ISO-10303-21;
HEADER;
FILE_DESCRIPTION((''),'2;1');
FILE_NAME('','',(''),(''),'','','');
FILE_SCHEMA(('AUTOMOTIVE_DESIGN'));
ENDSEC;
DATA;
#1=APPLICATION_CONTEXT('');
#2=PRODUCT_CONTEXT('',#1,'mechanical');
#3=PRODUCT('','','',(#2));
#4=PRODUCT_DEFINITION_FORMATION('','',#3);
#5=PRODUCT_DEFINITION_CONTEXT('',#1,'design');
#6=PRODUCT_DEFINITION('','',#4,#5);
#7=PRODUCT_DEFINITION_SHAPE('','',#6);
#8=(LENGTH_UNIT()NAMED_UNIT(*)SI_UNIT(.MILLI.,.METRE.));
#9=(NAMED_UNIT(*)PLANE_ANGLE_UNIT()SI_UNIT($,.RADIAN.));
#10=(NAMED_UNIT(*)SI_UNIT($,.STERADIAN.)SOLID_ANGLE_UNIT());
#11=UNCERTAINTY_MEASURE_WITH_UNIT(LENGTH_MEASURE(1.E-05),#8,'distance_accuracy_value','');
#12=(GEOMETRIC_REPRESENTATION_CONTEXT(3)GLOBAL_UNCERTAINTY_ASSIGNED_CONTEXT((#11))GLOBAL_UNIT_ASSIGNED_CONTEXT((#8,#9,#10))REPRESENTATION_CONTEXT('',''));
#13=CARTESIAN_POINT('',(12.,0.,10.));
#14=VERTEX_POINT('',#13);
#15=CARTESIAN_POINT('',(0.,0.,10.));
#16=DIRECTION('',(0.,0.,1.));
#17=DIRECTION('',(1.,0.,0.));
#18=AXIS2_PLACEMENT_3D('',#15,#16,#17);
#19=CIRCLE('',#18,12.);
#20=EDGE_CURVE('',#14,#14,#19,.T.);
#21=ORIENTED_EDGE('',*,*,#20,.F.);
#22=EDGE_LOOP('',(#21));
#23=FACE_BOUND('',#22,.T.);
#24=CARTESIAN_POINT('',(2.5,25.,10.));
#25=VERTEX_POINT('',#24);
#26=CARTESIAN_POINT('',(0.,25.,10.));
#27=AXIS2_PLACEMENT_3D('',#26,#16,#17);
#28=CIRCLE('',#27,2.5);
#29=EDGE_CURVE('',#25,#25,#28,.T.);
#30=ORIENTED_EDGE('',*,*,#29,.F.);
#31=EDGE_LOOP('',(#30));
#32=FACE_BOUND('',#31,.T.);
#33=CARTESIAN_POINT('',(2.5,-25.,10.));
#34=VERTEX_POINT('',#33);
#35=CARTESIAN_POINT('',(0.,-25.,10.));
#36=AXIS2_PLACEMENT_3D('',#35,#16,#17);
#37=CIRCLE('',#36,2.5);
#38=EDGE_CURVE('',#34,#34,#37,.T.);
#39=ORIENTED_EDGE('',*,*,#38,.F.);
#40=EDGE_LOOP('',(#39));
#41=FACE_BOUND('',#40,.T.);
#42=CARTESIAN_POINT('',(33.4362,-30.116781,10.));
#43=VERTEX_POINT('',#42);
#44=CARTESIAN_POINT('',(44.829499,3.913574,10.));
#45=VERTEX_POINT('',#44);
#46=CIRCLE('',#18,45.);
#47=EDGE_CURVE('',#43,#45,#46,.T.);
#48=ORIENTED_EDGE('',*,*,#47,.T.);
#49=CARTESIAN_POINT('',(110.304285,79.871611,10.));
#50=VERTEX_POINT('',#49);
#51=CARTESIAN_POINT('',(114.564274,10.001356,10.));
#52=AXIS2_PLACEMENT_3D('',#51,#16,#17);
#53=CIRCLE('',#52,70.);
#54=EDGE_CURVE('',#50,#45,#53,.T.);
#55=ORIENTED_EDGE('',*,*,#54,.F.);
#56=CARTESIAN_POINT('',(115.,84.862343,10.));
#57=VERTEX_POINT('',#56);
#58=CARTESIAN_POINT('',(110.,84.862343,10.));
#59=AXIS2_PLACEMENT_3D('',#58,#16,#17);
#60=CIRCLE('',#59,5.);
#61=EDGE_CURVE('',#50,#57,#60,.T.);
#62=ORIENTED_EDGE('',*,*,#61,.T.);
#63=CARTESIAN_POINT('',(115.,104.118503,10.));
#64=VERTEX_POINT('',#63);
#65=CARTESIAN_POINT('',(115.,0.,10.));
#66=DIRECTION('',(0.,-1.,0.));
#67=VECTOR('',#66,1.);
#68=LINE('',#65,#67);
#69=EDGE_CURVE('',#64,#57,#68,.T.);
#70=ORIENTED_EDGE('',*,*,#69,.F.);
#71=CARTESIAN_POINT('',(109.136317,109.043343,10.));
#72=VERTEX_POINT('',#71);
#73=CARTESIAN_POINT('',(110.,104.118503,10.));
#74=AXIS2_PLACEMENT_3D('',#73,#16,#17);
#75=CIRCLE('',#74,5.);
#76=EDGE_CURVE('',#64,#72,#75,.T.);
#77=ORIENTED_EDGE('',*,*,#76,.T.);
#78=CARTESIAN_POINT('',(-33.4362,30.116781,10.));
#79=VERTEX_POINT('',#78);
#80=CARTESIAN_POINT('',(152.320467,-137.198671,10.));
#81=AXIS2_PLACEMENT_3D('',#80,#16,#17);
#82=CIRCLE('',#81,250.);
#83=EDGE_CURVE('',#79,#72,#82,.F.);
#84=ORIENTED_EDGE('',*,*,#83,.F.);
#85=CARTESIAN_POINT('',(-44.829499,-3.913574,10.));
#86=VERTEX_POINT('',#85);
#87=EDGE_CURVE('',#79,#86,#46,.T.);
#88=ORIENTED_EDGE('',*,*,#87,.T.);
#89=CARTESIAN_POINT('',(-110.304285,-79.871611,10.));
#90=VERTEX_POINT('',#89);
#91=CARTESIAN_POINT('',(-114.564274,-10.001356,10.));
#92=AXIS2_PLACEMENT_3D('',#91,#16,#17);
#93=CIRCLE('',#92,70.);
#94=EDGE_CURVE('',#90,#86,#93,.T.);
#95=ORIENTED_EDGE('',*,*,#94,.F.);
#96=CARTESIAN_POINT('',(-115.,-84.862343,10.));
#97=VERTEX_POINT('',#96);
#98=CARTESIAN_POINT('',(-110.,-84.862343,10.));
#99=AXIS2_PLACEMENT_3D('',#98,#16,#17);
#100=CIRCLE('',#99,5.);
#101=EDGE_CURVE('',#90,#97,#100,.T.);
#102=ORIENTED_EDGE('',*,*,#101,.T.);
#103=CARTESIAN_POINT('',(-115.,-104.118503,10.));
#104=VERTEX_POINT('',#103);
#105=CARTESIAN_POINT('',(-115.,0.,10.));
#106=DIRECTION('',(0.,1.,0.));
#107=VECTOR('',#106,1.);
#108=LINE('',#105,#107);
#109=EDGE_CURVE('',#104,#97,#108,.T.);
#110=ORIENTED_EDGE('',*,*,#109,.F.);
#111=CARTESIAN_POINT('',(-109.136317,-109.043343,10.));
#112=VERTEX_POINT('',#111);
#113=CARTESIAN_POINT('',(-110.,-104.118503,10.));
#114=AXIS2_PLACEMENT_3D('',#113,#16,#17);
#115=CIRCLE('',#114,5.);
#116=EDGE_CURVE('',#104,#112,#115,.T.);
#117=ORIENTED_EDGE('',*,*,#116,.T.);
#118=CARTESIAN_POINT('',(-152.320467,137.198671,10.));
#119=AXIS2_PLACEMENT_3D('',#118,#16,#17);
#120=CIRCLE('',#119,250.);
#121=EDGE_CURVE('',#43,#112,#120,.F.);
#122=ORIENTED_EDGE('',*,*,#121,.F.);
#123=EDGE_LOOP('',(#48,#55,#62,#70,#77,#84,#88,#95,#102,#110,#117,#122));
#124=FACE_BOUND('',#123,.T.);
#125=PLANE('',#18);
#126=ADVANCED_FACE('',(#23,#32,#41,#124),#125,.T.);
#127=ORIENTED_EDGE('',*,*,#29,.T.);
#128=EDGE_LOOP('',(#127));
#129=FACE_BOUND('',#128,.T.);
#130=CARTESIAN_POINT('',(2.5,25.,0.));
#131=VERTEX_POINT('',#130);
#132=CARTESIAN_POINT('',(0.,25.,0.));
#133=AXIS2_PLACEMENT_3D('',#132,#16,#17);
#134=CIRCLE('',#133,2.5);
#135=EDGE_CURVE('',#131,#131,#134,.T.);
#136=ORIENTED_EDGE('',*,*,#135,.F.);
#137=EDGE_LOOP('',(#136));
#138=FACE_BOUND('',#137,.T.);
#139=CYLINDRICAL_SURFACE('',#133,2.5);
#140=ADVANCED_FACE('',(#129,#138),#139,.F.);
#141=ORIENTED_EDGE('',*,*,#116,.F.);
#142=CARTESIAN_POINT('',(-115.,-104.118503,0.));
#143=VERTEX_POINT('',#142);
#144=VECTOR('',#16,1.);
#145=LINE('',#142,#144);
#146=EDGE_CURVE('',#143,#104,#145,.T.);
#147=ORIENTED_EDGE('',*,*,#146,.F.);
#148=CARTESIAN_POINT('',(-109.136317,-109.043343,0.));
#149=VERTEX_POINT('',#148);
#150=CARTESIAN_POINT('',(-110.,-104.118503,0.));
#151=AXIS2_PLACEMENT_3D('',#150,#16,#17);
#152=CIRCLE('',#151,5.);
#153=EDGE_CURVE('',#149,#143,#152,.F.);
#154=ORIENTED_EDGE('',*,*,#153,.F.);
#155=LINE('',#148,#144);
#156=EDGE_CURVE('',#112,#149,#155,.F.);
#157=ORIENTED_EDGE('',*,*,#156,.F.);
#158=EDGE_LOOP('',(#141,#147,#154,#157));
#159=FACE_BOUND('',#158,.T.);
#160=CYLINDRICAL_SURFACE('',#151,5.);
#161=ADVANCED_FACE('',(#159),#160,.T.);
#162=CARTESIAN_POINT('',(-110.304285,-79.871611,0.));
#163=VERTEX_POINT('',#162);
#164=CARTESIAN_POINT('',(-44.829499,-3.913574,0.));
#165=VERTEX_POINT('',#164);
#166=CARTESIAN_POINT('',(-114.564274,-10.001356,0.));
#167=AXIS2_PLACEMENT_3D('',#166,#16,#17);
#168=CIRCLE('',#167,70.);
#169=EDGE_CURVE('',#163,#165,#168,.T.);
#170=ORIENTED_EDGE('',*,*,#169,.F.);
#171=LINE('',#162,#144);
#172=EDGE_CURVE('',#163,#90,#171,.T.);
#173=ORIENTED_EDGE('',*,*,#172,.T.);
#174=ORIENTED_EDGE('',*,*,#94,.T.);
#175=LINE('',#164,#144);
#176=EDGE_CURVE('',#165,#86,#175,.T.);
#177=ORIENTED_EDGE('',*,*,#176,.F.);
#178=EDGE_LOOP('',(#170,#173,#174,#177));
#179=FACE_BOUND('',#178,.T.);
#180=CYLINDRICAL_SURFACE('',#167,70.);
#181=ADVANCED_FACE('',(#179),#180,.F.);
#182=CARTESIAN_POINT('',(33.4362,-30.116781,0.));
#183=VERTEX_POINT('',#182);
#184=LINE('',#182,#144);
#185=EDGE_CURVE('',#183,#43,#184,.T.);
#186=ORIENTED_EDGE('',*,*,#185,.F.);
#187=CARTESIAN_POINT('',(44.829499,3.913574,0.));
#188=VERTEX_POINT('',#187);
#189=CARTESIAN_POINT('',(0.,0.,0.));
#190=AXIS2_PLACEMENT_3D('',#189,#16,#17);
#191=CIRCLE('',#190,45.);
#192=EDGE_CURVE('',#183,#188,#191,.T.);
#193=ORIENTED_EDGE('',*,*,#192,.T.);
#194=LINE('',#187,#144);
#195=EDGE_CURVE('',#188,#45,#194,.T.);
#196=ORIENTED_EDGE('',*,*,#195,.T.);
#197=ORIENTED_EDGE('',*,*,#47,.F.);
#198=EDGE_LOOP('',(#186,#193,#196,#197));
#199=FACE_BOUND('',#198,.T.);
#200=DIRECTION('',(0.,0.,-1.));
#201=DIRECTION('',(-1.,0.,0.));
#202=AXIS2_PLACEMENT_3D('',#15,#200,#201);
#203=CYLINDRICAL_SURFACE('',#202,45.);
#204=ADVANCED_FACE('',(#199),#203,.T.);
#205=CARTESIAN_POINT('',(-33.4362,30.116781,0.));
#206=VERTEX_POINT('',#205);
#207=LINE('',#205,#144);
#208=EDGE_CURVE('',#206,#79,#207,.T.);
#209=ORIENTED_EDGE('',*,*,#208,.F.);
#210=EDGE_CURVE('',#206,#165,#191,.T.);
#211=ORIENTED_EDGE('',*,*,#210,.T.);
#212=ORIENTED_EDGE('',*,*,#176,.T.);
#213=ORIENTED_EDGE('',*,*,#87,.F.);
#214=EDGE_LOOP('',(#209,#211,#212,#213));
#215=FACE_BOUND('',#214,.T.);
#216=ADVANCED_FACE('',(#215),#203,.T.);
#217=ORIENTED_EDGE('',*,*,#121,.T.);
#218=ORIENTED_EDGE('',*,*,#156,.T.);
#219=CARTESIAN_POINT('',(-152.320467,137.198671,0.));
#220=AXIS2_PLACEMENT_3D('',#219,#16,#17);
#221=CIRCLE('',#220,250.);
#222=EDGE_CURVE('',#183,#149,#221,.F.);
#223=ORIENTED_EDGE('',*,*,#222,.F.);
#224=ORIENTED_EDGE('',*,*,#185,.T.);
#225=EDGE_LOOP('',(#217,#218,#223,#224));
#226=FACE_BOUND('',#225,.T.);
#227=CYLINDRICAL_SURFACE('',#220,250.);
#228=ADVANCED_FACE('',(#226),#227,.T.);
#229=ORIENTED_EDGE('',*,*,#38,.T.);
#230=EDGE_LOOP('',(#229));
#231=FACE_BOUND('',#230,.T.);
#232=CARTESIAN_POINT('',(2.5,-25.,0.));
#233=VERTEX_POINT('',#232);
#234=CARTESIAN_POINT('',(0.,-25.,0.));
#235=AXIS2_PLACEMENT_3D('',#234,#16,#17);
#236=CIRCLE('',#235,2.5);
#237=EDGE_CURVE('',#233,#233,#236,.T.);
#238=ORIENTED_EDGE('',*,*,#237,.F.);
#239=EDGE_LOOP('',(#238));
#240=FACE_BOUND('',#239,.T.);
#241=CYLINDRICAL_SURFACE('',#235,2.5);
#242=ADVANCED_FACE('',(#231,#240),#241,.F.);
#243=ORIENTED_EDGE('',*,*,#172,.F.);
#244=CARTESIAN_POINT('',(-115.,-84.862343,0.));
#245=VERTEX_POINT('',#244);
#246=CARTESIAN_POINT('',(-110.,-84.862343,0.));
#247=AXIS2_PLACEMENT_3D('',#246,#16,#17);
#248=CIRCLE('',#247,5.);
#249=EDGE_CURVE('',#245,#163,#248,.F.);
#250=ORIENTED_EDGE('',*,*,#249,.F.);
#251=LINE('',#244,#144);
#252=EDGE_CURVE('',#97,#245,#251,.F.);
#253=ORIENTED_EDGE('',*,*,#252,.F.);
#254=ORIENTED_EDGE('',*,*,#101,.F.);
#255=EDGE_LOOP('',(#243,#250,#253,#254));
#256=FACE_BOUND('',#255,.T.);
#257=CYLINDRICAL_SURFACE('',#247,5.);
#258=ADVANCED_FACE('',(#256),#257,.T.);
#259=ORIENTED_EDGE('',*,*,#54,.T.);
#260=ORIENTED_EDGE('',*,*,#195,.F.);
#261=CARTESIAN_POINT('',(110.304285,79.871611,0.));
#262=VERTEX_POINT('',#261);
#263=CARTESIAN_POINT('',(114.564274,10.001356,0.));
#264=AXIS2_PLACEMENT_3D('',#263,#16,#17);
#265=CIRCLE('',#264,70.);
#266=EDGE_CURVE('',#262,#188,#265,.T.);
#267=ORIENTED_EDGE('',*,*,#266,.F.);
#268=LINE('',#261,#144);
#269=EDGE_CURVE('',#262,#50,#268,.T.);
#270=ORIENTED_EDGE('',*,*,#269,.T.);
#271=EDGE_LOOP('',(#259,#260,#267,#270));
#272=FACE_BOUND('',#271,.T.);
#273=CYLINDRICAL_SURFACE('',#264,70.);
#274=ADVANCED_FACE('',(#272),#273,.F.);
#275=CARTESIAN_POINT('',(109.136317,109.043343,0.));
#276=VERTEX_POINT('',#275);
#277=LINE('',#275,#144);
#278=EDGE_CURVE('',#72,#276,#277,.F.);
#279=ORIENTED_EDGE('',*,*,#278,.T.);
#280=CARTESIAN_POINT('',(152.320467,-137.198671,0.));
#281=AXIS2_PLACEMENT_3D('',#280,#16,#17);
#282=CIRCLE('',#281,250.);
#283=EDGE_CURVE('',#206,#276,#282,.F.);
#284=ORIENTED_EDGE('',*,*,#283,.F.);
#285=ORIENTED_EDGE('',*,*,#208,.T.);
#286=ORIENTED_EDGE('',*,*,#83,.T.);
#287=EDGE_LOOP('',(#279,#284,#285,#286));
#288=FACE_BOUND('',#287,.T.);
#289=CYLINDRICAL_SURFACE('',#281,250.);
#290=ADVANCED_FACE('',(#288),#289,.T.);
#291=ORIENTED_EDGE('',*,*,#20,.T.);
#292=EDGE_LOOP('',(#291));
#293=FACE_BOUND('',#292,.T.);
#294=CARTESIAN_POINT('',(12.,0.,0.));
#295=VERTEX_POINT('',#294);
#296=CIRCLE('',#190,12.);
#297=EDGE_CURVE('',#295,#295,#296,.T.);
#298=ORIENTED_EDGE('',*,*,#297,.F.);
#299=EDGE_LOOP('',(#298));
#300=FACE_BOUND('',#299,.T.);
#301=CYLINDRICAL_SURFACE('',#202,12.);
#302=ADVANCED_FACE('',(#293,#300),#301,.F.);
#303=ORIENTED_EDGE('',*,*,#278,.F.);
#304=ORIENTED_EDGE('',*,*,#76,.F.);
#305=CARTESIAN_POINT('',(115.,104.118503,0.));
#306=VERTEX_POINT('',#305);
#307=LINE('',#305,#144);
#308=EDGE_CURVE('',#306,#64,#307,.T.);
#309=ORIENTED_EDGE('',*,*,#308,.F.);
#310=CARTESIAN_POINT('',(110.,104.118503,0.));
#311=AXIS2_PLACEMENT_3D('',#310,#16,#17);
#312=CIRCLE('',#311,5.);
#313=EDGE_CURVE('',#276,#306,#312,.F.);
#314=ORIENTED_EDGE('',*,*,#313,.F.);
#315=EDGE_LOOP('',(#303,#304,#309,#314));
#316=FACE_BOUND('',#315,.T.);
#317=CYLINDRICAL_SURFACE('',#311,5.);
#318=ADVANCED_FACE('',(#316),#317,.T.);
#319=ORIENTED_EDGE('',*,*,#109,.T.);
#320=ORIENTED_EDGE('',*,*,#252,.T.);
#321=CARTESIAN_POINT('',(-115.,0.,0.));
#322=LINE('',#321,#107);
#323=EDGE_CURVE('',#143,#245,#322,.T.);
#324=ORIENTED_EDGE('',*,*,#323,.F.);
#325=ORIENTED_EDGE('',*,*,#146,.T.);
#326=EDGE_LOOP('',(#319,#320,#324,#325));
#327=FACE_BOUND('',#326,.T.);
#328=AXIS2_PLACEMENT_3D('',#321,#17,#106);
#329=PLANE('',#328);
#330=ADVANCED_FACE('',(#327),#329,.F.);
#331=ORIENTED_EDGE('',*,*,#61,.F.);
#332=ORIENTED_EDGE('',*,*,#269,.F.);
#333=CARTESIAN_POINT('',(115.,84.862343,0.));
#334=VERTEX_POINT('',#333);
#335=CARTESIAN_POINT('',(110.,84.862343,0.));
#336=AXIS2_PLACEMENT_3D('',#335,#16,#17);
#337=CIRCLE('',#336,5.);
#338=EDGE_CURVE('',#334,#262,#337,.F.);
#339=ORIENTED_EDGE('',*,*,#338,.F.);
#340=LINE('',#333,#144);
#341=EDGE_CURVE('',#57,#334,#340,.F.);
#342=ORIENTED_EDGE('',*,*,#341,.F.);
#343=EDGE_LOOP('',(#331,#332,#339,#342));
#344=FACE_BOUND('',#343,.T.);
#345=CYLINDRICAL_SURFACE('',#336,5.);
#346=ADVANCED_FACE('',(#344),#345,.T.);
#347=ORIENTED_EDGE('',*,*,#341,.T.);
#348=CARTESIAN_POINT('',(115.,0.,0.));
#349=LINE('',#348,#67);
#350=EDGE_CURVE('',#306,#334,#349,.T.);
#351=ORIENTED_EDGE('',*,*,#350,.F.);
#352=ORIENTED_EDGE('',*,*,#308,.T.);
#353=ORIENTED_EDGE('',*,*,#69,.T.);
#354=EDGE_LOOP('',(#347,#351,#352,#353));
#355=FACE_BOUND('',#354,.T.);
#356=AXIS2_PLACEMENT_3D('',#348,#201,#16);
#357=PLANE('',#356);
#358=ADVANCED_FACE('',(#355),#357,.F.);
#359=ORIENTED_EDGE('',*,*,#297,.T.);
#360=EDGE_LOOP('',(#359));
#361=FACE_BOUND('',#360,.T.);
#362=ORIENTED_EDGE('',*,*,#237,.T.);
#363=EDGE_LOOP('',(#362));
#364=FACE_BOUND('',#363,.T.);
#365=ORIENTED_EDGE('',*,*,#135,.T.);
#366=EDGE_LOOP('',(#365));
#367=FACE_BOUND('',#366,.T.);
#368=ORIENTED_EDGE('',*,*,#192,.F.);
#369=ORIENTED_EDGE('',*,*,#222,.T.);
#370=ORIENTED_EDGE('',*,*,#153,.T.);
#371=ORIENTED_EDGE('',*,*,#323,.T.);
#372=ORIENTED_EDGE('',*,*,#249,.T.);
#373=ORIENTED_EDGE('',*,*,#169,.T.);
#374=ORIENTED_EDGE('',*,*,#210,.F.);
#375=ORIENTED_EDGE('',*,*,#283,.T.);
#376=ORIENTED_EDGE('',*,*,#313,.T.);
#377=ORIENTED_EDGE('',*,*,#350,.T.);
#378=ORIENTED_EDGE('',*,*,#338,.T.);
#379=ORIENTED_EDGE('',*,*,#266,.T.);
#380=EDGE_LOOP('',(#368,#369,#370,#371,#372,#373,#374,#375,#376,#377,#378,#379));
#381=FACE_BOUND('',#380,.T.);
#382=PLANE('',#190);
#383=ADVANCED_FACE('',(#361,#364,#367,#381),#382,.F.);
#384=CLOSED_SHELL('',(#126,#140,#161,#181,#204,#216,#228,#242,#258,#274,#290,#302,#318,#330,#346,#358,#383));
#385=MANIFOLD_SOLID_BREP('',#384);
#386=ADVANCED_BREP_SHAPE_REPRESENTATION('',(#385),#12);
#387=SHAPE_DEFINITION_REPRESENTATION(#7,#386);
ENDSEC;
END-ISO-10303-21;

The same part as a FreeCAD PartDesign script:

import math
import FreeCAD as App
import Part
import Sketcher
Q = App.Units.Quantity


def edges_at(feature, points):
    """Names of the edges that pass closest to the given points."""
    edges = feature.Shape.Edges
    near = lambda p: min(range(len(edges)), key=lambda i: edges[i].distToShape(Part.Vertex(*p))[0])
    return sorted({f"Edge{near(p) + 1}" for p in points})

doc = App.newDocument("Part")
params = doc.addObject("Spreadsheet::Sheet", "Params")
for row, (alias, value) in enumerate([
    ("sketch1_diameter", "90 mm"),
    ("sketch1_diameter2", "24 mm"),
    ("pad1_length", "10 mm"),
    ("sketch2_radius", "45 mm"),
    ("sketch2_radius2", "70 mm"),
    ("sketch2_radius3", "250 mm"),
    ("sketch2_height", "30 mm"),
    ("pad2_length", "10 mm"),
    ("fillet_radius", "5 mm"),
    ("sketch3_diameter", "5 mm"),
], start=1):
    params.set(f"A{row}", alias)
    params.set(f"B{row}", "=" + value)
    params.setAlias(f"B{row}", alias)

body = doc.addObject("PartDesign::Body", "Body")

# Sketch on XY plane
sketch1 = body.newObject("Sketcher::SketchObject", "Sketch")
sketch1.AttachmentSupport = (doc.getObject("XY_Plane"), [""])
sketch1.MapMode = "FlatFace"
sketch1.addGeometry([
    Part.Circle(App.Vector(0, 0, 0), App.Vector(0, 0, 1), 45),
    Part.Circle(App.Vector(0, 0, 0), App.Vector(0, 0, 1), 12),
], False)
sketch1.addConstraint([
    Sketcher.Constraint("Coincident", 0, 3, -1, 1),
    Sketcher.Constraint("Coincident", 1, 3, -1, 1),
    Sketcher.Constraint("Diameter", 0, Q("90 mm")),
    Sketcher.Constraint("Diameter", 1, Q("24 mm")),
])
sketch1.setExpression("Constraints[2]", "Params.sketch1_diameter")
sketch1.setExpression("Constraints[3]", "Params.sketch1_diameter2")
pad1 = body.newObject("PartDesign::Pad", "Pad")
pad1.Profile = sketch1
pad1.setExpression("Length", "Params.pad1_length")

# Sketch on XY plane
sketch2 = body.newObject("Sketcher::SketchObject", "Sketch001")
sketch2.AttachmentSupport = (doc.getObject("XY_Plane"), [""])
sketch2.MapMode = "FlatFace"
sketch2.addGeometry([
    Part.ArcOfCircle(Part.Circle(App.Vector(0, 0, 0), App.Vector(0, 0, 1), 45), math.radians(-175), math.radians(-42)),  # 0
    Part.ArcOfCircle(Part.Circle(App.Vector(-115, -10, 0), App.Vector(0, 0, 1), 70), math.radians(-90), math.radians(5)),  # 1
    Part.LineSegment(App.Vector(-115, -80, 0), App.Vector(-115, -110, 0)),  # 2
    Part.ArcOfCircle(Part.Circle(App.Vector(-152, 137, 0), App.Vector(0, 0, 1), 250), math.radians(-81), math.radians(-42)),  # 3
    Part.LineSegment(App.Vector(115, 80, 0), App.Vector(115, 110, 0)),  # 4
    Part.ArcOfCircle(Part.Circle(App.Vector(152, -137, 0), App.Vector(0, 0, 1), 250), math.radians(99), math.radians(138)),  # 5
    Part.ArcOfCircle(Part.Circle(App.Vector(0, 0, 0), App.Vector(0, 0, 1), 45), math.radians(5), math.radians(138)),  # 6
    Part.ArcOfCircle(Part.Circle(App.Vector(115, 10, 0), App.Vector(0, 0, 1), 70), math.radians(90), math.radians(185)),  # 7
], False)
sketch2.addConstraint([
    Sketcher.Constraint("Tangent", 0, 1, 1, 2),
    Sketcher.Constraint("Coincident", 1, 1, 2, 1),
    Sketcher.Constraint("Coincident", 2, 2, 3, 1),
    Sketcher.Constraint("Tangent", 3, 2, 0, 2),
    Sketcher.Constraint("Coincident", 4, 2, 5, 1),
    Sketcher.Constraint("Tangent", 5, 2, 6, 2),
    Sketcher.Constraint("Tangent", 6, 1, 7, 2),
    Sketcher.Constraint("Coincident", 7, 1, 4, 1),
    Sketcher.Constraint("Vertical", 2),
    Sketcher.Constraint("Vertical", 4),
    Sketcher.Constraint("Coincident", 0, 3, -1, 1),
    Sketcher.Constraint("Coincident", 6, 3, -1, 1),
    Sketcher.Constraint("Equal", 3, 5),
    Sketcher.Constraint("Equal", 0, 6),
    Sketcher.Constraint("Equal", 1, 7),
    Sketcher.Constraint("Symmetric", 2, 2, 4, 2, -1, 1),
    Sketcher.Constraint("Equal", 2, 4),
    Sketcher.Constraint("Radius", 0, Q("45 mm")),
    Sketcher.Constraint("Radius", 1, Q("70 mm")),
    Sketcher.Constraint("Radius", 3, Q("250 mm")),
    Sketcher.Constraint("DistanceY", 2, 2, 2, 1, Q("30 mm")),
    Sketcher.Constraint("DistanceX", 1, 1, -1, 1, Q("115 mm")),
    Sketcher.Constraint("DistanceY", 1, 1, -1, 1, Q("80 mm")),
])
sketch2.setExpression("Constraints[17]", "Params.sketch2_radius")
sketch2.setExpression("Constraints[18]", "Params.sketch2_radius2")
sketch2.setExpression("Constraints[19]", "Params.sketch2_radius3")
sketch2.setExpression("Constraints[20]", "Params.sketch2_height")
pad2 = body.newObject("PartDesign::Pad", "Pad001")
pad2.Profile = sketch2
pad2.setExpression("Length", "Params.pad2_length")
doc.recompute()

fillet = body.newObject("PartDesign::Fillet", "Fillet")
fillet.Base = (pad2, edges_at(pad2, [
    (-115, -110, 5),
    (-115, -80, 5),
    (115, 80, 5),
    (115, 110, 5),
]))
fillet.setExpression("Radius", "Params.fillet_radius")

# Sketch on XY plane
sketch3 = body.newObject("Sketcher::SketchObject", "Sketch002")
sketch3.AttachmentSupport = (doc.getObject("XY_Plane"), [""])
sketch3.MapMode = "FlatFace"
sketch3.AttachmentOffset = App.Placement(App.Vector(0, 0, 10), App.Rotation())
sketch3.addGeometry([
    Part.Circle(App.Vector(0, 25, 0), App.Vector(0, 0, 1), 2.5),
    Part.Circle(App.Vector(0, -25, 0), App.Vector(0, 0, 1), 2.5),
], False)
sketch3.addConstraint([
    Sketcher.Constraint("Equal", 0, 1),
    Sketcher.Constraint("Symmetric", 0, 3, 1, 3, -1, 1),
    Sketcher.Constraint("PointOnObject", 0, 3, -2),
    Sketcher.Constraint("Diameter", 0, Q("5 mm")),
    Sketcher.Constraint("DistanceY", -1, 1, 0, 3, Q("25 mm")),
])
sketch3.setExpression("Constraints[3]", "Params.sketch3_diameter")
pocket1 = body.newObject("PartDesign::Pocket", "Pocket")
pocket1.Profile = sketch3
pocket1.Type = "ThroughAll"

doc.recompute()
